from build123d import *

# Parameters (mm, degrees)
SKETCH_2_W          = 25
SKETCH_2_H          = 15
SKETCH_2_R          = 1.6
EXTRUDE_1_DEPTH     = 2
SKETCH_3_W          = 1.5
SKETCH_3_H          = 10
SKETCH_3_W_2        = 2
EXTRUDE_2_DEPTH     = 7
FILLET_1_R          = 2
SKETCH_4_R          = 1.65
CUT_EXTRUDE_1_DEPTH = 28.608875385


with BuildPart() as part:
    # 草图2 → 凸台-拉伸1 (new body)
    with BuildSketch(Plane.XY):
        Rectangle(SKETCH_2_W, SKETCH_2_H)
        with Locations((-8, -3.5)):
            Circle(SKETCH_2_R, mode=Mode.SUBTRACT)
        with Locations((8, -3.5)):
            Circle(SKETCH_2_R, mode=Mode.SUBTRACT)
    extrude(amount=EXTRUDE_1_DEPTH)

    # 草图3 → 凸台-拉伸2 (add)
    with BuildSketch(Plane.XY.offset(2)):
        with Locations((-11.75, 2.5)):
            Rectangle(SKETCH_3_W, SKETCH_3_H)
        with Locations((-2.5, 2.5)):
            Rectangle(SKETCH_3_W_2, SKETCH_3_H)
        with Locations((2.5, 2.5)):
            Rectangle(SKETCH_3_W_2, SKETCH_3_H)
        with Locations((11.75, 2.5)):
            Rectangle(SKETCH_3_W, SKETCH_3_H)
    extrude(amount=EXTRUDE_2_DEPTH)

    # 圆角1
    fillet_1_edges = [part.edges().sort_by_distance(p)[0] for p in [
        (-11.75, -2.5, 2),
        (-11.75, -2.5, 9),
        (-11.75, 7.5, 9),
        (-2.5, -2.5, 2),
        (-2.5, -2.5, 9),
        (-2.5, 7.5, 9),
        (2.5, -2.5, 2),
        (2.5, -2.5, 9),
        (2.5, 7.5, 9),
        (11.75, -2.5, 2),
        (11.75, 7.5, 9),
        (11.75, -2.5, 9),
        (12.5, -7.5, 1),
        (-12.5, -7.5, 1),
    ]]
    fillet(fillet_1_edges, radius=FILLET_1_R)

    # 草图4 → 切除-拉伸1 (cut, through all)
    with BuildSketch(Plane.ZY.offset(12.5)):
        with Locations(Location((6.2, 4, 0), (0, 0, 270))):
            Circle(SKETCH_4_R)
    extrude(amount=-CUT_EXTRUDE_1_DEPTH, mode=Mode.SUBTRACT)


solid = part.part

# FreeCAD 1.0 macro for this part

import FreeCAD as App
import Part
import Sketcher
Q = App.Units.Quantity


def edges_at(feature, points):
    """Names of the edges that pass closest to the given points."""
    edges = feature.Shape.Edges
    near = lambda p: min(range(len(edges)), key=lambda i: edges[i].distToShape(Part.Vertex(*p))[0])
    return sorted({f"Edge{near(p) + 1}" for p in points})

doc = App.newDocument("Part")
body = doc.addObject("PartDesign::Body", "Body")

# Sketch on XY plane
sketch1 = body.newObject("Sketcher::SketchObject", "Sketch")
sketch1.AttachmentSupport = (doc.getObject("XY_Plane"), [""])
sketch1.MapMode = "FlatFace"
sketch1.addGeometry([
    Part.LineSegment(App.Vector(-12.5, 7.5, 0), App.Vector(-12.5, -7.5, 0)),  # 0
    Part.LineSegment(App.Vector(-12.5, -7.5, 0), App.Vector(12.5, -7.5, 0)),  # 1
    Part.LineSegment(App.Vector(12.5, -7.5, 0), App.Vector(12.5, 7.5, 0)),  # 2
    Part.LineSegment(App.Vector(12.5, 7.5, 0), App.Vector(-12.5, 7.5, 0)),  # 3
    Part.Circle(App.Vector(-8, -3.5, 0), App.Vector(0, 0, 1), 1.6),  # 4
    Part.Circle(App.Vector(8, -3.5, 0), App.Vector(0, 0, 1), 1.6),  # 5
], False)
sketch1.addConstraint([
    Sketcher.Constraint("Coincident", 0, 2, 1, 1),
    Sketcher.Constraint("Coincident", 1, 2, 2, 1),
    Sketcher.Constraint("Coincident", 2, 2, 3, 1),
    Sketcher.Constraint("Coincident", 3, 2, 0, 1),
    Sketcher.Constraint("Vertical", 0),
    Sketcher.Constraint("Horizontal", 1),
    Sketcher.Constraint("Vertical", 2),
    Sketcher.Constraint("Horizontal", 3),
    Sketcher.Constraint("Equal", 4, 5),
    Sketcher.Constraint("Symmetric", 0, 2, 2, 2, -1, 1),
    Sketcher.Constraint("Symmetric", 4, 3, 5, 3, -2),
    Sketcher.Constraint("Diameter", 4, Q("3.2 mm")),
    Sketcher.Constraint("DistanceX", 1, 1, 1, 2, Q("25 mm")),
    Sketcher.Constraint("DistanceY", 0, 2, 0, 1, Q("15 mm")),
    Sketcher.Constraint("DistanceX", 4, 3, -1, 1, Q("8 mm")),
    Sketcher.Constraint("DistanceY", 0, 2, 4, 3, Q("4 mm")),
])
pad1 = body.newObject("PartDesign::Pad", "Pad")
pad1.Profile = sketch1
pad1.Length = 2

# Sketch on XY plane
sketch2 = body.newObject("Sketcher::SketchObject", "Sketch001")
sketch2.AttachmentSupport = (doc.getObject("XY_Plane"), [""])
sketch2.MapMode = "FlatFace"
sketch2.AttachmentOffset = App.Placement(App.Vector(0, 0, 2), App.Rotation())
sketch2.addGeometry([
    Part.LineSegment(App.Vector(-12.5, 7.5, 0), App.Vector(-12.5, -2.5, 0)),  # 0
    Part.LineSegment(App.Vector(-12.5, -2.5, 0), App.Vector(-11, -2.5, 0)),  # 1
    Part.LineSegment(App.Vector(-11, -2.5, 0), App.Vector(-11, 7.5, 0)),  # 2
    Part.LineSegment(App.Vector(-11, 7.5, 0), App.Vector(-12.5, 7.5, 0)),  # 3
    Part.LineSegment(App.Vector(-3.5, 7.5, 0), App.Vector(-3.5, -2.5, 0)),  # 4
    Part.LineSegment(App.Vector(-3.5, -2.5, 0), App.Vector(-1.5, -2.5, 0)),  # 5
    Part.LineSegment(App.Vector(-1.5, -2.5, 0), App.Vector(-1.5, 7.5, 0)),  # 6
    Part.LineSegment(App.Vector(-1.5, 7.5, 0), App.Vector(-3.5, 7.5, 0)),  # 7
    Part.LineSegment(App.Vector(1.5, 7.5, 0), App.Vector(1.5, -2.5, 0)),  # 8
    Part.LineSegment(App.Vector(1.5, -2.5, 0), App.Vector(3.5, -2.5, 0)),  # 9
    Part.LineSegment(App.Vector(3.5, -2.5, 0), App.Vector(3.5, 7.5, 0)),  # 10
    Part.LineSegment(App.Vector(3.5, 7.5, 0), App.Vector(1.5, 7.5, 0)),  # 11
    Part.LineSegment(App.Vector(11, 7.5, 0), App.Vector(11, -2.5, 0)),  # 12
    Part.LineSegment(App.Vector(11, -2.5, 0), App.Vector(12.5, -2.5, 0)),  # 13
    Part.LineSegment(App.Vector(12.5, -2.5, 0), App.Vector(12.5, 7.5, 0)),  # 14
    Part.LineSegment(App.Vector(12.5, 7.5, 0), App.Vector(11, 7.5, 0)),  # 15
], False)
sketch2.addConstraint([
    Sketcher.Constraint("Coincident", 0, 2, 1, 1),
    Sketcher.Constraint("Coincident", 1, 2, 2, 1),
    Sketcher.Constraint("Coincident", 2, 2, 3, 1),
    Sketcher.Constraint("Coincident", 3, 2, 0, 1),
    Sketcher.Constraint("Coincident", 4, 2, 5, 1),
    Sketcher.Constraint("Coincident", 5, 2, 6, 1),
    Sketcher.Constraint("Coincident", 6, 2, 7, 1),
    Sketcher.Constraint("Coincident", 7, 2, 4, 1),
    Sketcher.Constraint("Coincident", 8, 2, 9, 1),
    Sketcher.Constraint("Coincident", 9, 2, 10, 1),
    Sketcher.Constraint("Coincident", 10, 2, 11, 1),
    Sketcher.Constraint("Coincident", 11, 2, 8, 1),
    Sketcher.Constraint("Coincident", 12, 2, 13, 1),
    Sketcher.Constraint("Coincident", 13, 2, 14, 1),
    Sketcher.Constraint("Coincident", 14, 2, 15, 1),
    Sketcher.Constraint("Coincident", 15, 2, 12, 1),
    Sketcher.Constraint("Vertical", 0),
    Sketcher.Constraint("Horizontal", 1),
    Sketcher.Constraint("Vertical", 2),
    Sketcher.Constraint("Horizontal", 3),
    Sketcher.Constraint("Vertical", 4),
    Sketcher.Constraint("Horizontal", 5),
    Sketcher.Constraint("Vertical", 6),
    Sketcher.Constraint("Horizontal", 7),
    Sketcher.Constraint("Vertical", 8),
    Sketcher.Constraint("Horizontal", 9),
    Sketcher.Constraint("Vertical", 10),
    Sketcher.Constraint("Horizontal", 11),
    Sketcher.Constraint("Vertical", 12),
    Sketcher.Constraint("Horizontal", 13),
    Sketcher.Constraint("Vertical", 14),
    Sketcher.Constraint("Horizontal", 15),
    Sketcher.Constraint("Symmetric", 5, 2, 8, 2, -2),
    Sketcher.Constraint("Symmetric", 7, 2, 10, 2, -2),
    Sketcher.Constraint("Symmetric", 1, 2, 12, 2, -2),
    Sketcher.Constraint("Symmetric", 3, 2, 14, 2, -2),
    Sketcher.Constraint("Horizontal", 1, 2, 4, 2),
    Sketcher.Constraint("Horizontal", 3, 2, 6, 2),
    Sketcher.Constraint("DistanceX", 5, 1, 5, 2, Q("2 mm")),
    Sketcher.Constraint("DistanceY", 0, 2, 0, 1, Q("10 mm")),
    Sketcher.Constraint("DistanceX", 1, 1, 1, 2, Q("1.5 mm")),
    Sketcher.Constraint("DistanceX", 1, 2, -1, 1, Q("11 mm")),
    Sketcher.Constraint("DistanceX", 0, 2, 4, 2, Q("9 mm")),
    Sketcher.Constraint("DistanceY", 0, 2, -1, 1, Q("2.5 mm")),
])
pad2 = body.newObject("PartDesign::Pad", "Pad001")
pad2.Profile = sketch2
pad2.Length = 7
doc.recompute()

fillet = body.newObject("PartDesign::Fillet", "Fillet")
fillet.Base = (pad2, edges_at(pad2, [
    (-11.75, -2.5, 2),
    (-11.75, -2.5, 9),
    (-11.75, 7.5, 9),
    (-2.5, -2.5, 2),
    (-2.5, -2.5, 9),
    (-2.5, 7.5, 9),
    (2.5, -2.5, 2),
    (2.5, -2.5, 9),
    (2.5, 7.5, 9),
    (11.75, -2.5, 2),
    (11.75, 7.5, 9),
    (11.75, -2.5, 9),
    (12.5, -7.5, 1),
    (-12.5, -7.5, 1),
]))
fillet.Radius = 2

# Sketch on YZ plane
sketch3 = body.newObject("Sketcher::SketchObject", "Sketch002")
sketch3.AttachmentSupport = (doc.getObject("YZ_Plane"), [""])
sketch3.MapMode = "FlatFace"
sketch3.AttachmentOffset = App.Placement(App.Vector(0, 0, -12.5), App.Rotation())
sketch3.addGeometry(Part.Circle(App.Vector(4, 6.2, 0), App.Vector(0, 0, 1), 1.6), False)
sketch3.addConstraint([
    Sketcher.Constraint("Diameter", 0, Q("3.3 mm")),
    Sketcher.Constraint("DistanceX", -1, 1, 0, 3, Q("4 mm")),
    Sketcher.Constraint("DistanceY", -1, 1, 0, 3, Q("6.2 mm")),
])
pocket1 = body.newObject("PartDesign::Pocket", "Pocket")
pocket1.Profile = sketch3
pocket1.Type = "ThroughAll"
pocket1.Reversed = True

doc.recompute()
